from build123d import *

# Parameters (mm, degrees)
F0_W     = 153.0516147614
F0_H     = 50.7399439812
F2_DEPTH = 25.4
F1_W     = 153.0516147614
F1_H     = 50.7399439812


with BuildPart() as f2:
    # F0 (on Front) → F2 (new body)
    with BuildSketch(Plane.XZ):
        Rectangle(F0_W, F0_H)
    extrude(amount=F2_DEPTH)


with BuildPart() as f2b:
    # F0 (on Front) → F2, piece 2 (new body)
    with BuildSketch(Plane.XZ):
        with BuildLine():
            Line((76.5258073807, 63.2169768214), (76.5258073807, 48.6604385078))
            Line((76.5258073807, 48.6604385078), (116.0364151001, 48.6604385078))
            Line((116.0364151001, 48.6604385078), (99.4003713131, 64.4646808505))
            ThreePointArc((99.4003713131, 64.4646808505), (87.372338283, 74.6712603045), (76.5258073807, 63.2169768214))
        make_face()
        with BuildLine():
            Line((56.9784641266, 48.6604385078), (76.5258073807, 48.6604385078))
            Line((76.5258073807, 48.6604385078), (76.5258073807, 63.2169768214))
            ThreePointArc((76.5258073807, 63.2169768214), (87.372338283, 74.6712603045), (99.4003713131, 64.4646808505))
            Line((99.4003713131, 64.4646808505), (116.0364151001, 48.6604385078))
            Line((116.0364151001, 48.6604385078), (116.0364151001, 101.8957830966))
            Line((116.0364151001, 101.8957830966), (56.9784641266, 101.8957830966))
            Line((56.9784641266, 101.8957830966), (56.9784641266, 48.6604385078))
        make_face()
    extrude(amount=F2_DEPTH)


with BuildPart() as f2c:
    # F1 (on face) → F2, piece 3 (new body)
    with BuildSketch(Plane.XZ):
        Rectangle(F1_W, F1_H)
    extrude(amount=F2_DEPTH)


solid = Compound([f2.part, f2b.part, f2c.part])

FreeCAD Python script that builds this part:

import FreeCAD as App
import Part
import Sketcher
Q = App.Units.Quantity

doc = App.newDocument("Part")
body = doc.addObject("PartDesign::Body", "Body")

sketch1 = doc.addObject("Sketcher::SketchObject", "Sketch")
body.addObject(sketch1)
sketch1.AttachmentSupport = (doc.XZ_Plane, [""])
sketch1.MapMode = "FlatFace"
sketch1.addGeometry([
    Part.LineSegment(App.Vector(-77, 25, 0), App.Vector(-77, -25, 0)),
    Part.LineSegment(App.Vector(-77, -25, 0), App.Vector(77, -25, 0)),
    Part.LineSegment(App.Vector(77, -25, 0), App.Vector(77, 25, 0)),
    Part.LineSegment(App.Vector(77, 25, 0), App.Vector(-77, 25, 0)),
], False)
sketch1.addConstraint([
    Sketcher.Constraint("Coincident", 0, 2, 1, 1),
    Sketcher.Constraint("Coincident", 1, 2, 2, 1),
    Sketcher.Constraint("Coincident", 2, 2, 3, 1),
    Sketcher.Constraint("Coincident", 3, 2, 0, 1),
    Sketcher.Constraint("Vertical", 0),
    Sketcher.Constraint("Horizontal", 1),
    Sketcher.Constraint("Vertical", 2),
    Sketcher.Constraint("Horizontal", 3),
    Sketcher.Constraint("Symmetric", 0, 2, 2, 2, -1, 1),
    Sketcher.Constraint("DistanceX", 1, 1, 1, 2, 153.051615),
    Sketcher.Constraint("DistanceY", 0, 2, 0, 1, 50.739944),
])
pad1 = doc.addObject("PartDesign::Pad", "Pad")
body.addObject(pad1)
pad1.Profile = sketch1
pad1.Length = Q("1 in")
body2 = doc.addObject("PartDesign::Body", "Body001")

sketch2 = doc.addObject("Sketcher::SketchObject", "Sketch001")
body2.addObject(sketch2)
sketch2.AttachmentSupport = (doc.getObject("XZ_Plane001"), [""])
sketch2.MapMode = "FlatFace"
sketch2.addGeometry([
    Part.LineSegment(App.Vector(116, 49, 0), App.Vector(116, 102, 0)),
    Part.LineSegment(App.Vector(116, 102, 0), App.Vector(57, 102, 0)),
    Part.LineSegment(App.Vector(57, 102, 0), App.Vector(57, 49, 0)),
    Part.LineSegment(App.Vector(57, 49, 0), App.Vector(116, 49, 0)),
], False)
sketch2.addConstraint([
    Sketcher.Constraint("Coincident", 0, 2, 1, 1),
    Sketcher.Constraint("Coincident", 1, 2, 2, 1),
    Sketcher.Constraint("Coincident", 2, 2, 3, 1),
    Sketcher.Constraint("Coincident", 3, 2, 0, 1),
    Sketcher.Constraint("Vertical", 0),
    Sketcher.Constraint("Horizontal", 1),
    Sketcher.Constraint("Vertical", 2),
    Sketcher.Constraint("Horizontal", 3),
    Sketcher.Constraint("DistanceX", 1, 2, 1, 1, 59.057951),
    Sketcher.Constraint("DistanceY", 0, 1, 0, 2, 53.235345),
    Sketcher.Constraint("DistanceY", -1, 1, 2, 2, 48.660439),
    Sketcher.Constraint("DistanceX", -1, 1, 0, 2, 116.036415),
])
pad2 = doc.addObject("PartDesign::Pad", "Pad001")
body2.addObject(pad2)
pad2.Profile = sketch2
pad2.Length = Q("1 in")
body3 = doc.addObject("PartDesign::Body", "Body002")

sketch3 = doc.addObject("Sketcher::SketchObject", "Sketch002")
body3.addObject(sketch3)
sketch3.AttachmentSupport = (doc.getObject("XZ_Plane002"), [""])
sketch3.MapMode = "FlatFace"
sketch3.addGeometry([
    Part.LineSegment(App.Vector(-77, 25, 0), App.Vector(-77, -25, 0)),
    Part.LineSegment(App.Vector(-77, -25, 0), App.Vector(77, -25, 0)),
    Part.LineSegment(App.Vector(77, -25, 0), App.Vector(77, 25, 0)),
    Part.LineSegment(App.Vector(77, 25, 0), App.Vector(-77, 25, 0)),
], False)
sketch3.addConstraint([
    Sketcher.Constraint("Coincident", 0, 2, 1, 1),
    Sketcher.Constraint("Coincident", 1, 2, 2, 1),
    Sketcher.Constraint("Coincident", 2, 2, 3, 1),
    Sketcher.Constraint("Coincident", 3, 2, 0, 1),
    Sketcher.Constraint("Vertical", 0),
    Sketcher.Constraint("Horizontal", 1),
    Sketcher.Constraint("Vertical", 2),
    Sketcher.Constraint("Horizontal", 3),
    Sketcher.Constraint("Symmetric", 0, 2, 2, 2, -1, 1),
    Sketcher.Constraint("DistanceX", 1, 1, 1, 2, 153.051615),
    Sketcher.Constraint("DistanceY", 0, 2, 0, 1, 50.739944),
])
pad3 = doc.addObject("PartDesign::Pad", "Pad002")
body3.addObject(pad3)
pad3.Profile = sketch3
pad3.Length = Q("1 in")

doc.recompute()
